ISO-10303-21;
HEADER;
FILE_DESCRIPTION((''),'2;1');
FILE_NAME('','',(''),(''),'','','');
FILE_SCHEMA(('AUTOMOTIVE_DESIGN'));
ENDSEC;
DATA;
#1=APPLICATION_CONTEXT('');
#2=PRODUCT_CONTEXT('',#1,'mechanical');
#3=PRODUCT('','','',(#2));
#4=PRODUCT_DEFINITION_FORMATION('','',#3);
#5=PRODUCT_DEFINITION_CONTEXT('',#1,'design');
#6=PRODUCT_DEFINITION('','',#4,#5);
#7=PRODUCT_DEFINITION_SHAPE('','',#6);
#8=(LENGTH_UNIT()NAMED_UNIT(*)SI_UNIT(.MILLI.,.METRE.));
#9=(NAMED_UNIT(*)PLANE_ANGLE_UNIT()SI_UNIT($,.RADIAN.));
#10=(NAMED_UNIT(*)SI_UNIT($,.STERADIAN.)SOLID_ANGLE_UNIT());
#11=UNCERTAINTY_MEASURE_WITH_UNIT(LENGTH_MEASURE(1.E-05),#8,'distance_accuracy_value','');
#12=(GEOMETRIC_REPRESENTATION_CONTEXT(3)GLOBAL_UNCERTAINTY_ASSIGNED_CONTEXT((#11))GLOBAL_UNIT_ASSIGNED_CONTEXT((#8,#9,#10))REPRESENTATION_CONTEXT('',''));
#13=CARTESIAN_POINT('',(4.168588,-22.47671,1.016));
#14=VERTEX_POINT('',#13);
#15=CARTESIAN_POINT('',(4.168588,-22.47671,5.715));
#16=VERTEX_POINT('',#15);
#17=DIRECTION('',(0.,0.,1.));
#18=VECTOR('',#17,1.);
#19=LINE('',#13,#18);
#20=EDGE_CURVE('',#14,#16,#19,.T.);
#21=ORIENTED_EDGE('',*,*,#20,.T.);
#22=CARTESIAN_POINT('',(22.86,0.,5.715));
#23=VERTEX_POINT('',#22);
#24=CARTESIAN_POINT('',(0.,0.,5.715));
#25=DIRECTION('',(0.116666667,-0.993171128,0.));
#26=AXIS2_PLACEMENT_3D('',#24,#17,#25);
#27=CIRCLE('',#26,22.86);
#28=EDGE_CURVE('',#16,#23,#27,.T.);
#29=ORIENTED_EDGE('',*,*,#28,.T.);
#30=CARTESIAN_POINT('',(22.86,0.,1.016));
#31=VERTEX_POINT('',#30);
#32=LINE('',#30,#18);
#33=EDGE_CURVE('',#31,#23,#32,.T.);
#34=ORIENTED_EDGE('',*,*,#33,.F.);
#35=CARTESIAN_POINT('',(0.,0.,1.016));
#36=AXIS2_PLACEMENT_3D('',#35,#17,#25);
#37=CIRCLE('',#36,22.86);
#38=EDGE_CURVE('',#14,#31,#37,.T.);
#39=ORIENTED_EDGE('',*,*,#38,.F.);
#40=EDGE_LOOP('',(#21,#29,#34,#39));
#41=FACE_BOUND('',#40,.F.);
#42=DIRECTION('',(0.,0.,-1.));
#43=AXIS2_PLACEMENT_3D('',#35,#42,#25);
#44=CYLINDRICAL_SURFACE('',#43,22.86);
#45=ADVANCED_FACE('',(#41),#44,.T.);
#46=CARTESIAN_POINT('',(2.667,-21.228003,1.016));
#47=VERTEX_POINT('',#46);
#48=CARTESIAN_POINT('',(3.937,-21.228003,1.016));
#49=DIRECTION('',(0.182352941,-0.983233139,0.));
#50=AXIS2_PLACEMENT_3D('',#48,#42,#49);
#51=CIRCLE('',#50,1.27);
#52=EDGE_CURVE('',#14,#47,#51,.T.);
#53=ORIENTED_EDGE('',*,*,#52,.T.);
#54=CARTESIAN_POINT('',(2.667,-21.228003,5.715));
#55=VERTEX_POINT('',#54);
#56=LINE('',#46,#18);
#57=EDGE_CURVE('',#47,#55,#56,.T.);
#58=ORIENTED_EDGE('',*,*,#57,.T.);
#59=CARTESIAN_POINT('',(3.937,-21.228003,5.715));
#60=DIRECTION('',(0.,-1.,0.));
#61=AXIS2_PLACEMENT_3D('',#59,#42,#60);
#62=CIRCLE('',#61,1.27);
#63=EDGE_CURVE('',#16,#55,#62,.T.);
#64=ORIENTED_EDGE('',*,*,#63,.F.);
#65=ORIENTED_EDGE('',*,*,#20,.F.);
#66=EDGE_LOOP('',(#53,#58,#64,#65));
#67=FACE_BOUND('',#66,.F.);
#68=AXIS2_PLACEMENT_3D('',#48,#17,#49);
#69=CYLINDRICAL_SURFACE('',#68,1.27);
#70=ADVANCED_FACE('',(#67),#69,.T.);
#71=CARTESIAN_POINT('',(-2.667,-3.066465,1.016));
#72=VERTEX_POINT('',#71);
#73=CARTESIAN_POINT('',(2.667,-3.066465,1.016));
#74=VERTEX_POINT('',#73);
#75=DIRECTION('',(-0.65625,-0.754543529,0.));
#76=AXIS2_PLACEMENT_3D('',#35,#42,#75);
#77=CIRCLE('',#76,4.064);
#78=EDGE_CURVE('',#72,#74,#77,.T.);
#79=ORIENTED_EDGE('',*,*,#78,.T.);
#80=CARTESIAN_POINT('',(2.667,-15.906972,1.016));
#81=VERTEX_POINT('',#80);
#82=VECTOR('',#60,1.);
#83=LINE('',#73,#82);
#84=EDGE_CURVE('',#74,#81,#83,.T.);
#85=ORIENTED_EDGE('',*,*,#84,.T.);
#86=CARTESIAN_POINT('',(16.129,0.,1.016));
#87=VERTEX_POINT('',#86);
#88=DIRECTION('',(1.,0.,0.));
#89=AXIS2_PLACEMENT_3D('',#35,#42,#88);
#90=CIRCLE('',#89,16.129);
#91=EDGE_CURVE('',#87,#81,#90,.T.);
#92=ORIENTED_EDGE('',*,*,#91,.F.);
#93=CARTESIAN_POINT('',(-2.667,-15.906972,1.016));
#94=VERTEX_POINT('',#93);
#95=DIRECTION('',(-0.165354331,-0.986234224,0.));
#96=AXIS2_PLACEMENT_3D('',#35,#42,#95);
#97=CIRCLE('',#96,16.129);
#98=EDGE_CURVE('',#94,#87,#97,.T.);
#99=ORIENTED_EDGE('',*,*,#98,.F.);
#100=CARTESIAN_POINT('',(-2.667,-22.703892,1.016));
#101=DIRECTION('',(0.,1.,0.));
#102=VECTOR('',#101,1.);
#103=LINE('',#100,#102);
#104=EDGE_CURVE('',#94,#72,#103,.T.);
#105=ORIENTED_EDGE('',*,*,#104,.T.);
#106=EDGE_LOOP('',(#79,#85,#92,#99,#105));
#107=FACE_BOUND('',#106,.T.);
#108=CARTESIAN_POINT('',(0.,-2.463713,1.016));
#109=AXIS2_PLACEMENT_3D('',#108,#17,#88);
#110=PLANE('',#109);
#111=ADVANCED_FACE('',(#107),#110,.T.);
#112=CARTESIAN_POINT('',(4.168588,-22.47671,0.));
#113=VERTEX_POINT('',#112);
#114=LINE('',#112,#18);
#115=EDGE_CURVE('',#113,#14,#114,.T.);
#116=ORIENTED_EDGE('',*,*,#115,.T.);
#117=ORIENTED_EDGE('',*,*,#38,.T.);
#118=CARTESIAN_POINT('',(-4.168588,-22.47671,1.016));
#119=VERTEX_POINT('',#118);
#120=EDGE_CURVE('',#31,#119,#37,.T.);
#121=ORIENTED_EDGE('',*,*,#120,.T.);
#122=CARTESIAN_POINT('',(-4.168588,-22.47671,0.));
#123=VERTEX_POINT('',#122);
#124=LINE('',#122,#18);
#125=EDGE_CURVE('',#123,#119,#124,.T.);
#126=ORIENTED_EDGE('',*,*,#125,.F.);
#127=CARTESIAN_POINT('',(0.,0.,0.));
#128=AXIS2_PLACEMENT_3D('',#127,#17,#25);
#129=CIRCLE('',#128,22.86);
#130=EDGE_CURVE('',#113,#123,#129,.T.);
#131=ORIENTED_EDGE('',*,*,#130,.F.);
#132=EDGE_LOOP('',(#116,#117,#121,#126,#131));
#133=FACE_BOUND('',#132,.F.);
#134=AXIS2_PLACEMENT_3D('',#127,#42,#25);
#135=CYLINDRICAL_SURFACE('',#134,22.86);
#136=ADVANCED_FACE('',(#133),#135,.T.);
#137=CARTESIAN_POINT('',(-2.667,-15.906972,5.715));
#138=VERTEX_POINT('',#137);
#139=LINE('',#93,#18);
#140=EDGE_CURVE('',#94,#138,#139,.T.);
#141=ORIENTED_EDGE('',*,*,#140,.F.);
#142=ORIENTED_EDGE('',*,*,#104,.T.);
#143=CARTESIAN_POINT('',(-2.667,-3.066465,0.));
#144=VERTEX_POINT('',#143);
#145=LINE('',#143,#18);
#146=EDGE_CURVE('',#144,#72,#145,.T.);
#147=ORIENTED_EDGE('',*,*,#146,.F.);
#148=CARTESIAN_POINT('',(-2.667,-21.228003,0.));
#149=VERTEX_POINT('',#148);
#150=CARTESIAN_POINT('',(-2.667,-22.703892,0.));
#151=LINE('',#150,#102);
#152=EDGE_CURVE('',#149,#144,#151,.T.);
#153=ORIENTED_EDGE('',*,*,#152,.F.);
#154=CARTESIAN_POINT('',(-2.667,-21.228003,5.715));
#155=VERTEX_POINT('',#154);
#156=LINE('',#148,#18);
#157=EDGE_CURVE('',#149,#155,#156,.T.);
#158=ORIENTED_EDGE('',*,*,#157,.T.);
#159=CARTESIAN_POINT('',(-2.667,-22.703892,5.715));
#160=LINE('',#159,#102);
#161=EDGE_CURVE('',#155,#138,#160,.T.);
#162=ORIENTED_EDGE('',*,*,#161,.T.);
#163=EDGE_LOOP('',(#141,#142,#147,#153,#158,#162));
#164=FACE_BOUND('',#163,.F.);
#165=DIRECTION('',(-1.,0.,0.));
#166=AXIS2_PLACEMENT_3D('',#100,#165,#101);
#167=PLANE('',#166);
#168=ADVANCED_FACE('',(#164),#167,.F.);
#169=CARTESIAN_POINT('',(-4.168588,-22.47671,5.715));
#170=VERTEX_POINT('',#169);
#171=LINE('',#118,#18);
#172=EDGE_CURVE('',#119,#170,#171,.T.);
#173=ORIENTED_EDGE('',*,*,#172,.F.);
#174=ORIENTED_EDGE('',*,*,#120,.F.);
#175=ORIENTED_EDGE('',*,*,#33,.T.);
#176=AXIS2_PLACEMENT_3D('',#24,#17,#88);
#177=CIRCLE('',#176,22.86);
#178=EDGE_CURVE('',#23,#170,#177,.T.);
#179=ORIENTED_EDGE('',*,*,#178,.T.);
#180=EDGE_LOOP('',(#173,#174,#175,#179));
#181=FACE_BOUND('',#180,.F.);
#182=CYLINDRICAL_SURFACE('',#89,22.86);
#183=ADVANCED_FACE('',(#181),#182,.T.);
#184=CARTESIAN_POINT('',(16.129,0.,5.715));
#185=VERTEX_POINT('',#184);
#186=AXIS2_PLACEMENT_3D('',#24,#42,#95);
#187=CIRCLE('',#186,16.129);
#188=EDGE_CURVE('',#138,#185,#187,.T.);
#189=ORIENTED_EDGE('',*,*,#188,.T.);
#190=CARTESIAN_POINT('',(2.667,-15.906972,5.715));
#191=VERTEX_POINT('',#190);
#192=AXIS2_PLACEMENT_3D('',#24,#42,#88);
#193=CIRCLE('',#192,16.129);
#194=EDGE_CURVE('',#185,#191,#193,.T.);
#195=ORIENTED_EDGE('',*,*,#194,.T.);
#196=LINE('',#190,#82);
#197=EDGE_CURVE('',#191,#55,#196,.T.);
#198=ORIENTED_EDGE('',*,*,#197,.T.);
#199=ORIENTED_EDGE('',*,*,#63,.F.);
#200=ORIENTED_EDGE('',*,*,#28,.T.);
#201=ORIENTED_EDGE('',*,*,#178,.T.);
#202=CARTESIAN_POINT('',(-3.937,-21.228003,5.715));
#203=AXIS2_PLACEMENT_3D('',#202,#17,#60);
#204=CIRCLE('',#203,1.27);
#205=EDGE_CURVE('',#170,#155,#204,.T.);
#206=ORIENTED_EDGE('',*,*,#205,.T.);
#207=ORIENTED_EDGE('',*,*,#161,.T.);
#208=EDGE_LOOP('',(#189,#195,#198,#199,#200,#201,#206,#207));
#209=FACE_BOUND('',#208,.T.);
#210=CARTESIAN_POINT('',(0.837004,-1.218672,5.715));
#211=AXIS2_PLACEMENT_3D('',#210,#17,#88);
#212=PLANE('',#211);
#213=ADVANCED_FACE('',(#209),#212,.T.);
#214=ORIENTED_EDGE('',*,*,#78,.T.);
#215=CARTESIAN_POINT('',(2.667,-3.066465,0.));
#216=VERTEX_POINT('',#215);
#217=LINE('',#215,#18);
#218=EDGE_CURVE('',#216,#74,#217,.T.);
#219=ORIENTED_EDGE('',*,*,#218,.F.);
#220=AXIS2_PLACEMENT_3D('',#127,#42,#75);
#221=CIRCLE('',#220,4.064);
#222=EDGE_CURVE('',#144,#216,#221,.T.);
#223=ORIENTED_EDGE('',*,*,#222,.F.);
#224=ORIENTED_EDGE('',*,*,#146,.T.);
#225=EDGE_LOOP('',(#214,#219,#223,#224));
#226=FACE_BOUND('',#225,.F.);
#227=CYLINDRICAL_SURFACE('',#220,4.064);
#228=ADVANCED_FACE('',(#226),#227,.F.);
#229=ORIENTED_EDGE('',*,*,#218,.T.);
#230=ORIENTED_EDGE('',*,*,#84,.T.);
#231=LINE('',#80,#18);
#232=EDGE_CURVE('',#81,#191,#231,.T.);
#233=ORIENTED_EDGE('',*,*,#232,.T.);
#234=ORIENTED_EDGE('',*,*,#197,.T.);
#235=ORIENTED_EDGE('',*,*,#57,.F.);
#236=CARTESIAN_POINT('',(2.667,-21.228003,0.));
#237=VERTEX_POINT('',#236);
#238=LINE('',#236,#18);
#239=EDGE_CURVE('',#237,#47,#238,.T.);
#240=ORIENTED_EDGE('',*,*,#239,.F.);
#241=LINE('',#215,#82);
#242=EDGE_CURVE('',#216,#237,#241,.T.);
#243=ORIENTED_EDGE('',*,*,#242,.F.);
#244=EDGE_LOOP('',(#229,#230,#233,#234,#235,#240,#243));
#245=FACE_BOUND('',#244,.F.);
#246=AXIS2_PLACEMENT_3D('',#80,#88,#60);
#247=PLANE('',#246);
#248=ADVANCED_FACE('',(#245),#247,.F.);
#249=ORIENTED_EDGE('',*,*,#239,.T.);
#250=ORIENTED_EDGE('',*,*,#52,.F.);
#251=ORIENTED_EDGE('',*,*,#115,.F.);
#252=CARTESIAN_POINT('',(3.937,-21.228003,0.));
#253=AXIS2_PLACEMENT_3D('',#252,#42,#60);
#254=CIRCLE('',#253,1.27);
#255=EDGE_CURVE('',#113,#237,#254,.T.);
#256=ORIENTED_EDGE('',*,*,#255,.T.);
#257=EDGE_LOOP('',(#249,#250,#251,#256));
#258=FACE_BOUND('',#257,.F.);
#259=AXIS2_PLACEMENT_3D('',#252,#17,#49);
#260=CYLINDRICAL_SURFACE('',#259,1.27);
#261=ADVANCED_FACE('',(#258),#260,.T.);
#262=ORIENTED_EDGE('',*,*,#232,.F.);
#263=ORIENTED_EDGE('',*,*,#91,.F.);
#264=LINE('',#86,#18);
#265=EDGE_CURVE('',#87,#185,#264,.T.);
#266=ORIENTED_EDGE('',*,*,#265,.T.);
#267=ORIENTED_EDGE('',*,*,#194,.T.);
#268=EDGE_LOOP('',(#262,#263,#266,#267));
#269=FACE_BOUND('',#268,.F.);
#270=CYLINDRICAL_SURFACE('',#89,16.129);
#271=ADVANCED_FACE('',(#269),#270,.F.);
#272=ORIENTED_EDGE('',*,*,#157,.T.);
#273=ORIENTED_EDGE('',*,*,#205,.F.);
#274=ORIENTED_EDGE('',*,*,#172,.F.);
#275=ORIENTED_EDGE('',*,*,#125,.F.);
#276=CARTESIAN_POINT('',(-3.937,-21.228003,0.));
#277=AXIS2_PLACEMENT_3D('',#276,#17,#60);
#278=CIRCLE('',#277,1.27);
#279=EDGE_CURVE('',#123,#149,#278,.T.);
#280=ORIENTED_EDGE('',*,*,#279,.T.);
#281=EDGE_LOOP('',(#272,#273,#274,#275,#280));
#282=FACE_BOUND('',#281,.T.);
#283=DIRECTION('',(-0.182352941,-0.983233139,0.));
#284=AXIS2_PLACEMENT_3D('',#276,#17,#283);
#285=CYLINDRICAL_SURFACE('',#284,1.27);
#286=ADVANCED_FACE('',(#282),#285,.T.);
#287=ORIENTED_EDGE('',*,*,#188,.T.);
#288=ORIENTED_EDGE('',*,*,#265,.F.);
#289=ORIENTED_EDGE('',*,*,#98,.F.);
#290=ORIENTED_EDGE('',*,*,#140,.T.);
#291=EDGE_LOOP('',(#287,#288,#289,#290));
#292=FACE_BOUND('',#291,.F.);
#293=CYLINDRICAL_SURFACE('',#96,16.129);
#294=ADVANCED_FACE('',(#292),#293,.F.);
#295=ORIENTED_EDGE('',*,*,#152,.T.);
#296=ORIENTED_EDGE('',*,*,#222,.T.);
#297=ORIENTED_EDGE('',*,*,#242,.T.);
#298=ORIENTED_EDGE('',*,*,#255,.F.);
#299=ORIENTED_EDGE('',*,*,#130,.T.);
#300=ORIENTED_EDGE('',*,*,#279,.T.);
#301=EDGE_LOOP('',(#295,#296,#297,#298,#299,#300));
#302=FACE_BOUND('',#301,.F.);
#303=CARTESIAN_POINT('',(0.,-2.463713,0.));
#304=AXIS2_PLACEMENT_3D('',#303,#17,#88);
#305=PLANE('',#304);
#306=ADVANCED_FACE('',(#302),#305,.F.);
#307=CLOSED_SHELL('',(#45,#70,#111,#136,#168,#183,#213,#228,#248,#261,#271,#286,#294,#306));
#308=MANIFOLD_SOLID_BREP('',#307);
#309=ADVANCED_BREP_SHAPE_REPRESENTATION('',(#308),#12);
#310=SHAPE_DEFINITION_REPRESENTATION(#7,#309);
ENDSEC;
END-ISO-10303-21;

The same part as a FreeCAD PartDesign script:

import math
import FreeCAD as App
import Part
import Sketcher
from FreeCAD import Vector
Q = App.Units.Quantity


def edges_at(feature, points):
    """Names of the edges that pass closest to the given points."""
    edges = feature.Shape.Edges
    near = lambda p: min(range(len(edges)), key=lambda i: edges[i].distToShape(Part.Vertex(*p))[0])
    return sorted({f"Edge{near(p) + 1}" for p in points})

doc = App.newDocument("Part")
body = doc.addObject("PartDesign::Body", "Body")

sketch1 = body.newObject("Sketcher::SketchObject", "Sketch")
sketch1.AttachmentSupport = (doc.getObject("XY_Plane"), [""])
sketch1.MapMode = "FlatFace"
sketch1.addGeometry([
    Part.ArcOfCircle(Part.Circle(Vector(0, 0, 0), Vector(0, 0, 1), 4.1), math.radians(-49), math.radians(229)),
    Part.LineSegment(Vector(2.7, -3.1, 0), Vector(2.7, -22.7, 0)),
    Part.ArcOfCircle(Part.Circle(Vector(0, 0, 0), Vector(0, 0, 1), 22.9), math.radians(-83), math.radians(263)),
    Part.LineSegment(Vector(-2.7, -22.7, 0), Vector(-2.7, -3.1, 0)),
], False)
sketch1.addConstraint([
    Sketcher.Constraint("Coincident", 0, 1, 1, 1),
    Sketcher.Constraint("Coincident", 1, 2, 2, 1),
    Sketcher.Constraint("Coincident", 2, 2, 3, 1),
    Sketcher.Constraint("Coincident", 3, 2, 0, 2),
    Sketcher.Constraint("Vertical", 1),
    Sketcher.Constraint("Vertical", 3),
    Sketcher.Constraint("Coincident", 0, 3, -1, 1),
    Sketcher.Constraint("Coincident", 2, 3, -1, 1),
    Sketcher.Constraint("Horizontal", 1, 2, 2, 2),
    Sketcher.Constraint("Radius", 2, Q("0.9 in")),
    Sketcher.Constraint("Radius", 0, Q("0.16 in")),
    Sketcher.Constraint("DistanceX", 2, 2, 1, 2, Q("0.21 in")),
])
pad1 = body.newObject("PartDesign::Pad", "Pad")
pad1.Profile = sketch1
pad1.Length = Q("0.04 in")

sketch2 = body.newObject("Sketcher::SketchObject", "Sketch001")
sketch2.AttachmentSupport = (doc.getObject("XY_Plane"), [""])
sketch2.MapMode = "FlatFace"
sketch2.AttachmentOffset = App.Placement(Vector(0, 0, 0.04 * 25.4), App.Rotation())
sketch2.addGeometry([
    Part.ArcOfCircle(Part.Circle(Vector(0, 0, 0), Vector(0, 0, 1), 23), math.radians(-83), math.radians(0)),
    Part.ArcOfCircle(Part.Circle(Vector(0, 0, 0), Vector(0, 0, 1), 23), math.radians(0), math.radians(263)),
    Part.LineSegment(Vector(-3, -23, 0), Vector(-3, -16, 0)),
    Part.ArcOfCircle(Part.Circle(Vector(0, 0, 0), Vector(0, 0, 1), 16), math.radians(0), math.radians(260)),
    Part.ArcOfCircle(Part.Circle(Vector(0, 0, 0), Vector(0, 0, 1), 16), math.radians(-80), math.radians(0)),
    Part.LineSegment(Vector(3, -16, 0), Vector(3, -23, 0)),
], False)
sketch2.addConstraint([
    Sketcher.Constraint("Tangent", 0, 2, 1, 1),
    Sketcher.Constraint("Coincident", 1, 2, 2, 1),
    Sketcher.Constraint("Coincident", 2, 2, 3, 2),
    Sketcher.Constraint("Tangent", 3, 1, 4, 2),
    Sketcher.Constraint("Coincident", 4, 1, 5, 1),
    Sketcher.Constraint("Coincident", 5, 2, 0, 1),
    Sketcher.Constraint("Vertical", 2),
    Sketcher.Constraint("Vertical", 5),
    Sketcher.Constraint("Coincident", 0, 3, -1, 1),
    Sketcher.Constraint("Coincident", 3, 3, -1, 1),
    Sketcher.Constraint("Equal", 0, 1),
    Sketcher.Constraint("Equal", 3, 4),
    Sketcher.Constraint("PointOnObject", 0, 2, -1),
    Sketcher.Constraint("PointOnObject", 3, 1, -1),
    Sketcher.Constraint("Horizontal", 2, 2, 4, 1),
    Sketcher.Constraint("Radius", 0, Q("0.9 in")),
    Sketcher.Constraint("Radius", 3, Q("0.635 in")),
    Sketcher.Constraint("DistanceX", 2, 2, 4, 1, Q("0.21 in")),
])
pad2 = body.newObject("PartDesign::Pad", "Pad001")
pad2.Profile = sketch2
pad2.Length = Q("0.185 in")
doc.recompute()

fillet = body.newObject("PartDesign::Fillet", "Fillet")
fillet.Base = (pad2, edges_at(pad2, [(-2.667, -22.704, 3.365), (2.667, -22.704, 3.365)]))
fillet.Radius = Q("0.05 in")

doc.recompute()
